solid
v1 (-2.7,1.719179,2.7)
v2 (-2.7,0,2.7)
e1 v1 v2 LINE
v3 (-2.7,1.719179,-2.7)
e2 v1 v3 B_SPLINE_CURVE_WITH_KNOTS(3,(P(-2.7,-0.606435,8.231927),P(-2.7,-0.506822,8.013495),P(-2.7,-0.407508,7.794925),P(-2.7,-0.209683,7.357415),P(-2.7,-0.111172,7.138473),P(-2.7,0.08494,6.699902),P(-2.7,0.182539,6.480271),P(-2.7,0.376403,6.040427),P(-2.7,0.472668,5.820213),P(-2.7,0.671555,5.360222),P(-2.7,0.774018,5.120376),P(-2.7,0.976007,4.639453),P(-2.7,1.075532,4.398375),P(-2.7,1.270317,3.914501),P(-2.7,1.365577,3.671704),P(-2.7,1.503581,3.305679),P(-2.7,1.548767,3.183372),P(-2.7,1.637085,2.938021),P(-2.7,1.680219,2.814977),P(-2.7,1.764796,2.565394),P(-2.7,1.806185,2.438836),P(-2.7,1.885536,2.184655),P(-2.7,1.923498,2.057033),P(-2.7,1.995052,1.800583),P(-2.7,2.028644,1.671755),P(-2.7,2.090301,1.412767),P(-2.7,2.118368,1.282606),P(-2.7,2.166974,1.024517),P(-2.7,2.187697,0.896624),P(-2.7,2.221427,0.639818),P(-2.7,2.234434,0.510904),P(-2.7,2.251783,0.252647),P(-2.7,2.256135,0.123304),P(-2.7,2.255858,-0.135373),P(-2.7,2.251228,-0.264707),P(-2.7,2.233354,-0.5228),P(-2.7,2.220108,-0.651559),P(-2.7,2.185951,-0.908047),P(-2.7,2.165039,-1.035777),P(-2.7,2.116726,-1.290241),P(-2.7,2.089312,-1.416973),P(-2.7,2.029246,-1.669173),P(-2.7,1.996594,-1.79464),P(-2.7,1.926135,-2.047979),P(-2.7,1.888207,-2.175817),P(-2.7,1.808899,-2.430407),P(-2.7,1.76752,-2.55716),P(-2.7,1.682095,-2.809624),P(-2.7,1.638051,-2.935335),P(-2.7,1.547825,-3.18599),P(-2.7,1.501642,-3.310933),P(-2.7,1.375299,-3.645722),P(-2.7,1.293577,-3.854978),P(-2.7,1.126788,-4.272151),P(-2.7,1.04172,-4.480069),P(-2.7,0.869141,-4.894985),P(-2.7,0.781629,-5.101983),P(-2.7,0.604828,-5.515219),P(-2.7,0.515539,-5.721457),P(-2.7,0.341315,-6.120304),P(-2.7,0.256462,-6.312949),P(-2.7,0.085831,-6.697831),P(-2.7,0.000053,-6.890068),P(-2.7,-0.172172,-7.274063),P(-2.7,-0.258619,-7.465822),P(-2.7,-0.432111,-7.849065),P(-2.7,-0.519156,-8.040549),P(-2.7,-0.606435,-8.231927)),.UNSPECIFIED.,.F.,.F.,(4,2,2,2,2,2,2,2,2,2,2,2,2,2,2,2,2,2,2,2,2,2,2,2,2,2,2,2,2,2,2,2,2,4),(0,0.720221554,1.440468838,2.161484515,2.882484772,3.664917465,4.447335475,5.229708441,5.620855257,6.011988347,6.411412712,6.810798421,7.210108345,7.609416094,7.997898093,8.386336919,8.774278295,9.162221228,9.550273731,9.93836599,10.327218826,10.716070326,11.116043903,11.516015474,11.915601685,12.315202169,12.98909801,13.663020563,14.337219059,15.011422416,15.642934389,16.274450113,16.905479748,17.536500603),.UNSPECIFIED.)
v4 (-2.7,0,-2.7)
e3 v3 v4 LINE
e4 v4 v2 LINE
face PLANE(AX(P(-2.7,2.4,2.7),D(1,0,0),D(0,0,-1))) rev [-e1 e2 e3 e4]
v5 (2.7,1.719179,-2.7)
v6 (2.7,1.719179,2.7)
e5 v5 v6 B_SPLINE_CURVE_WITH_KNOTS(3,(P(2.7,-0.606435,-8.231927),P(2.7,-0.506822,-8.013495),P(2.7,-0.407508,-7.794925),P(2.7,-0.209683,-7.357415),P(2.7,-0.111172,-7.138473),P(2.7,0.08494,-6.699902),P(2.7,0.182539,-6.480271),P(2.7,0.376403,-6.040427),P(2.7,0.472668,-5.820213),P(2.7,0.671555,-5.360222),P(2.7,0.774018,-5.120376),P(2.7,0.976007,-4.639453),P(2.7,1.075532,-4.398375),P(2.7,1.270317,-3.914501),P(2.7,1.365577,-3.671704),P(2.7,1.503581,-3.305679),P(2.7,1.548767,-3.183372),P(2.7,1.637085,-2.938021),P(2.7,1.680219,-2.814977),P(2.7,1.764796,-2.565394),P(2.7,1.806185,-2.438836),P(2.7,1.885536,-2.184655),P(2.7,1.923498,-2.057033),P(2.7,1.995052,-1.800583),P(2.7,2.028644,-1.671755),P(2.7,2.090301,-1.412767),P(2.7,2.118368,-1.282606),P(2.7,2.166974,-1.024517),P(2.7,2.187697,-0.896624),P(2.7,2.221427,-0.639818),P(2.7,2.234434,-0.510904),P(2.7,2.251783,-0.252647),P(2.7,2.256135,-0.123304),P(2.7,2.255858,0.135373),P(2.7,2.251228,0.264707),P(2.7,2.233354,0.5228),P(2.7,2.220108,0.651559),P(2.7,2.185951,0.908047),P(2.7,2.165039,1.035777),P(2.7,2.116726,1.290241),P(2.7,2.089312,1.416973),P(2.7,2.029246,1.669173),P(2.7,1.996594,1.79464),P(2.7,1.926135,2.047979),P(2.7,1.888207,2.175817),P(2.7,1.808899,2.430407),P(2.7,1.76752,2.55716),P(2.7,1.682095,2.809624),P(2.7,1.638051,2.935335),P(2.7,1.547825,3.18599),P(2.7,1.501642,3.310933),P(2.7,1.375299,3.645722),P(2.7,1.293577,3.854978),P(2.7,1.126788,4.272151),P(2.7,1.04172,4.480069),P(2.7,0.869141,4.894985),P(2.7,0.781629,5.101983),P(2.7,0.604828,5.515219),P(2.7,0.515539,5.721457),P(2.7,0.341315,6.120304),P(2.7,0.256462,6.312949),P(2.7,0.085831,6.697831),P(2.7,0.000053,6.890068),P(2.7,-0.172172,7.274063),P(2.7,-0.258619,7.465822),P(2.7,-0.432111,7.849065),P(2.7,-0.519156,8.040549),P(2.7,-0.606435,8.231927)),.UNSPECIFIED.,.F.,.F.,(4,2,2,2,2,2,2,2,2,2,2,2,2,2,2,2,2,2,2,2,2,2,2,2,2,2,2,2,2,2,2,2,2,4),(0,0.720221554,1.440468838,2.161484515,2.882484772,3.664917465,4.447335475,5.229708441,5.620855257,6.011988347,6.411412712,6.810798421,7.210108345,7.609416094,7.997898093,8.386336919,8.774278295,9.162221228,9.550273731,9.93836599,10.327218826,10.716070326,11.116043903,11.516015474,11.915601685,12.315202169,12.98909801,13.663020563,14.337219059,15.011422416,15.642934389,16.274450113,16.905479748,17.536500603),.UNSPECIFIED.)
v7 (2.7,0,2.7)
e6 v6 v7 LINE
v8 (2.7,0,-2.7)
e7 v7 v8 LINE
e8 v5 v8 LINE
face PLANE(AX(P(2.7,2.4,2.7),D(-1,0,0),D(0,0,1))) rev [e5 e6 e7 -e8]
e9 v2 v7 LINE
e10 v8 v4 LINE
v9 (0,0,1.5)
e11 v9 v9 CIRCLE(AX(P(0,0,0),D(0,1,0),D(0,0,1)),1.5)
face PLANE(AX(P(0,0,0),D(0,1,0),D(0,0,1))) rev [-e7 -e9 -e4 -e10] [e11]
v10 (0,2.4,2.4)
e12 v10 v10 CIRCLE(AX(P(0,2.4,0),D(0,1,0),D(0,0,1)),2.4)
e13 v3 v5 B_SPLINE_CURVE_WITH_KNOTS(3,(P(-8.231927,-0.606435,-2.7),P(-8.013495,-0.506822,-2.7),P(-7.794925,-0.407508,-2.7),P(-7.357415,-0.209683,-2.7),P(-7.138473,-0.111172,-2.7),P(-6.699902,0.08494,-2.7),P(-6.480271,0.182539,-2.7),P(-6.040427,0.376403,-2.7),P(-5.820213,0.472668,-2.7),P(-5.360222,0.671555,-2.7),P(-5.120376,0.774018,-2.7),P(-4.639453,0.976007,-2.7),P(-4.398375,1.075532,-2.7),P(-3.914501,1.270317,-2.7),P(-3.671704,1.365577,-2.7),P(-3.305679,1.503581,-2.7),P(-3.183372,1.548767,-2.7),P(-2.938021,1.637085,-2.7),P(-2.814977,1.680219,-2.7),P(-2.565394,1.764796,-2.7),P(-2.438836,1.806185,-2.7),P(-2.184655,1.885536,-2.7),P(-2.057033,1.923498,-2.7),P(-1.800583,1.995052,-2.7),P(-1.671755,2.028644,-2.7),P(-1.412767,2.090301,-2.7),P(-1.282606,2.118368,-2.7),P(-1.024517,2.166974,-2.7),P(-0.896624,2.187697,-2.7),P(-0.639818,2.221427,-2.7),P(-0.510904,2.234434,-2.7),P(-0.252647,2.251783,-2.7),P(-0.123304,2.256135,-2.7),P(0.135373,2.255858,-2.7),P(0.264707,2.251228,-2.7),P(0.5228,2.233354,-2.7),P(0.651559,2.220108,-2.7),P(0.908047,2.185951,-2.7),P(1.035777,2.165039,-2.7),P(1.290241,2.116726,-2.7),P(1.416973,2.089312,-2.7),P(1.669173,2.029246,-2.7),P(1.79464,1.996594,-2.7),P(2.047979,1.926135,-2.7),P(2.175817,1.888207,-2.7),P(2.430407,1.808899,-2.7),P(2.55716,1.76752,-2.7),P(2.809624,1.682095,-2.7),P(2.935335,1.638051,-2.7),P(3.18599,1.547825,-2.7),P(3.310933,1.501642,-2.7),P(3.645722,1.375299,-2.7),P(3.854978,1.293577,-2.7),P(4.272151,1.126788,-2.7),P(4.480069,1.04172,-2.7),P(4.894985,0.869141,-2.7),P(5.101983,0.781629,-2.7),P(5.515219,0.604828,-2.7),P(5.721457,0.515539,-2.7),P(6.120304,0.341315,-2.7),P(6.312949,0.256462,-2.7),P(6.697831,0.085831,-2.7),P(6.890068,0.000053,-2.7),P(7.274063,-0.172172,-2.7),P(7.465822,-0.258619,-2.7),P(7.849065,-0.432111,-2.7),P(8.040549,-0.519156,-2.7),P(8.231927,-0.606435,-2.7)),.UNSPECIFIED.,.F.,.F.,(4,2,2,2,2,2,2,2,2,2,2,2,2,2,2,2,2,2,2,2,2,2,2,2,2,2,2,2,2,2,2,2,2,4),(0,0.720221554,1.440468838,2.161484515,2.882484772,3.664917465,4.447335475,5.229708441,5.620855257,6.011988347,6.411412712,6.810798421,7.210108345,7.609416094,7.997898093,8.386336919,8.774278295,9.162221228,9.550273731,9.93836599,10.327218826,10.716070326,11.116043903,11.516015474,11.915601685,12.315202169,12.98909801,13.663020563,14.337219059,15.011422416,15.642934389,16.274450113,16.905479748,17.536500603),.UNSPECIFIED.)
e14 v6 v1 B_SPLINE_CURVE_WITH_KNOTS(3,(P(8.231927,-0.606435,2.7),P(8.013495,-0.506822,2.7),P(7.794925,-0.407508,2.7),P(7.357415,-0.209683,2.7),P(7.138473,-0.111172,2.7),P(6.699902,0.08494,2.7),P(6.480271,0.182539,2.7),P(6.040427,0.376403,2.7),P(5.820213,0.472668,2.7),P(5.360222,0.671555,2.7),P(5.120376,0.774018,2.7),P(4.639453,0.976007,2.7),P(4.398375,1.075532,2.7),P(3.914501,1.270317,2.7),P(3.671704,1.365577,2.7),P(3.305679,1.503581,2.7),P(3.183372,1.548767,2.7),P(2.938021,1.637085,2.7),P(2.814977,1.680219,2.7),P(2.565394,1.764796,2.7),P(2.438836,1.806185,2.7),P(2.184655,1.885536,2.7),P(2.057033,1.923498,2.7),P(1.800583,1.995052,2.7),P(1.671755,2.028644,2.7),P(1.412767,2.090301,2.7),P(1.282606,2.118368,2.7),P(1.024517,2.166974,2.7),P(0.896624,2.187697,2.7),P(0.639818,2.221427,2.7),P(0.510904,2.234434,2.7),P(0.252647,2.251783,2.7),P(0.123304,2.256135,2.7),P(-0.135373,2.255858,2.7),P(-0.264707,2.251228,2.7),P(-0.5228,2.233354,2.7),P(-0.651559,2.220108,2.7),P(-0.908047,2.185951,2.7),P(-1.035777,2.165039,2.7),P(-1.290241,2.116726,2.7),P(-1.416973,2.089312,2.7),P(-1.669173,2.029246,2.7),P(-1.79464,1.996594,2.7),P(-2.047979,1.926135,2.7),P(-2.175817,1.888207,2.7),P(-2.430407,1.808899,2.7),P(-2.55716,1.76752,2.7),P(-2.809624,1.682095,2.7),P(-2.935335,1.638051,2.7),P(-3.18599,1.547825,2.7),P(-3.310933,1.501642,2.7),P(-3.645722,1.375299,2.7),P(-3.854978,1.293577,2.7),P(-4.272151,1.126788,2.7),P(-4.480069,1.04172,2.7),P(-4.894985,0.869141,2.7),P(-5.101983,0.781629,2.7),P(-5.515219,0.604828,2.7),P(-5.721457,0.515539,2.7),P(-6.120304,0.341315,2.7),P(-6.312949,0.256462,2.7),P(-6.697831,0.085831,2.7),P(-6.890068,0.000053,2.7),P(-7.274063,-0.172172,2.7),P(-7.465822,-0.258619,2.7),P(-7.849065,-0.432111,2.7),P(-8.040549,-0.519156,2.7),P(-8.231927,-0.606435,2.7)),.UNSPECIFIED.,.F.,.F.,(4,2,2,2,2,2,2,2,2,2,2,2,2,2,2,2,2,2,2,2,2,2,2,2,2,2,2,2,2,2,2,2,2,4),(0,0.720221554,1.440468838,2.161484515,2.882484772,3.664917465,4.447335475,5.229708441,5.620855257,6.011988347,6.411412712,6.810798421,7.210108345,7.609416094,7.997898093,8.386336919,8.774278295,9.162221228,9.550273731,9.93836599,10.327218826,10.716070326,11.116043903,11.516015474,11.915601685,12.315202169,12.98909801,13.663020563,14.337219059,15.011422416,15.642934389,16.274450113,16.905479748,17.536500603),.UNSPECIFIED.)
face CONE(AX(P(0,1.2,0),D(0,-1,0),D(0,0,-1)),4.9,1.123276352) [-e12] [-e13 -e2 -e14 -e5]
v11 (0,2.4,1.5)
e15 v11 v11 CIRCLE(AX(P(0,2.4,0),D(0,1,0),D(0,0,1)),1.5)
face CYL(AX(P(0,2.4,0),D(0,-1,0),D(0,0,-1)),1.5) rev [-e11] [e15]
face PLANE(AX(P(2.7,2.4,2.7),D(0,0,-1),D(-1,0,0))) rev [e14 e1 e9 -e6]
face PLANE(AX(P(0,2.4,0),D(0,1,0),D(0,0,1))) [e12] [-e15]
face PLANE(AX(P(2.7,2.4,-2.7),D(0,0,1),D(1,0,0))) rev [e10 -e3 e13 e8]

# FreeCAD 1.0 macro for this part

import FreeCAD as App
import Part
import Sketcher
from FreeCAD import Vector
Q = App.Units.Quantity


def add_polygon(sketch, points):
    """Adds a closed chain of lines whose ends are joined by coincident constraints."""
    first, n = sketch.GeometryCount, len(points)
    for a, b in zip(points, points[1:] + points[:1]):
        sketch.addGeometry(Part.LineSegment(App.Vector(*a, 0), App.Vector(*b, 0)), False)
    for i in range(n):
        sketch.addConstraint(Sketcher.Constraint("Coincident", first + i, 2, first + (i + 1) % n, 1))

doc = App.newDocument("Part")
params = doc.addObject("Spreadsheet::Sheet", "Params")
for row, (alias, value) in enumerate([
    ("sketch1_diameter", "3 mm"),
    ("sketch1_width", "5.4 mm"),
    ("pad1_length", "2.4 mm"),
    ("sketch2_width", "2.5 mm"),
    ("sketch2_height", "1.2 mm"),
    ("groove_angle", "360 deg"),
], start=1):
    params.set(f"A{row}", alias)
    params.set(f"B{row}", "=" + value)
    params.setAlias(f"B{row}", alias)

body = doc.addObject("PartDesign::Body", "Body")

sketch1 = body.newObject("Sketcher::SketchObject", "Sketch")
sketch1.AttachmentSupport = (doc.getObject("XZ_Plane"), [""])
sketch1.MapMode = "FlatFace"
add_polygon(sketch1, [(-2.7, -2.7), (-2.7, 2.7), (2.7, 2.7), (2.7, -2.7)])
sketch1.addGeometry(Part.Circle(Vector(0, 0, 0), Vector(0, 0, 1), 1.5), False)
sketch1.addConstraint([
    Sketcher.Constraint("Vertical", 0),
    Sketcher.Constraint("Horizontal", 1),
    Sketcher.Constraint("Vertical", 2),
    Sketcher.Constraint("Horizontal", 3),
    Sketcher.Constraint("Coincident", 4, 3, -1, 1),
    Sketcher.Constraint("Symmetric", 0, 2, 2, 2, -1, 1),
    Sketcher.Constraint("Equal", 3, 0),
    Sketcher.Constraint("Diameter", 4, Q("3 mm")),
    Sketcher.Constraint("DistanceX", 1, 1, 1, 2, Q("5.4 mm")),
])
sketch1.setExpression("Constraints[11]", "Params.sketch1_diameter")
sketch1.setExpression("Constraints[12]", "Params.sketch1_width")
pad1 = body.newObject("PartDesign::Pad", "Pad")
pad1.Profile = sketch1
pad1.setExpression("Length", "Params.pad1_length")
pad1.Reversed = True

sketch2 = body.newObject("Sketcher::SketchObject", "Sketch001")
sketch2.AttachmentSupport = (doc.getObject("XY_Plane"), [""])
sketch2.MapMode = "FlatFace"
add_polygon(sketch2, [(-4.9, 1.2), (-2.4, 2.4), (-4.9, 2.4)])
sketch2.addConstraint([
    Sketcher.Constraint("Horizontal", 1),
    Sketcher.Constraint("Vertical", 2),
    Sketcher.Constraint("DistanceX", 1, 2, 1, 1, Q("2.5 mm")),
    Sketcher.Constraint("DistanceY", 2, 2, 2, 1, Q("1.2 mm")),
    Sketcher.Constraint("DistanceX", 0, 2, -1, 1, Q("2.4 mm")),
    Sketcher.Constraint("DistanceY", -1, 1, 0, 2, Q("2.4 mm")),
])
sketch2.setExpression("Constraints[5]", "Params.sketch2_width")
sketch2.setExpression("Constraints[6]", "Params.sketch2_height")
groove = body.newObject("PartDesign::Groove", "Groove")
groove.Profile = sketch2
groove.ReferenceAxis = (sketch2, ["V_Axis"])
groove.setExpression("Angle", "Params.groove_angle")

doc.recompute()
